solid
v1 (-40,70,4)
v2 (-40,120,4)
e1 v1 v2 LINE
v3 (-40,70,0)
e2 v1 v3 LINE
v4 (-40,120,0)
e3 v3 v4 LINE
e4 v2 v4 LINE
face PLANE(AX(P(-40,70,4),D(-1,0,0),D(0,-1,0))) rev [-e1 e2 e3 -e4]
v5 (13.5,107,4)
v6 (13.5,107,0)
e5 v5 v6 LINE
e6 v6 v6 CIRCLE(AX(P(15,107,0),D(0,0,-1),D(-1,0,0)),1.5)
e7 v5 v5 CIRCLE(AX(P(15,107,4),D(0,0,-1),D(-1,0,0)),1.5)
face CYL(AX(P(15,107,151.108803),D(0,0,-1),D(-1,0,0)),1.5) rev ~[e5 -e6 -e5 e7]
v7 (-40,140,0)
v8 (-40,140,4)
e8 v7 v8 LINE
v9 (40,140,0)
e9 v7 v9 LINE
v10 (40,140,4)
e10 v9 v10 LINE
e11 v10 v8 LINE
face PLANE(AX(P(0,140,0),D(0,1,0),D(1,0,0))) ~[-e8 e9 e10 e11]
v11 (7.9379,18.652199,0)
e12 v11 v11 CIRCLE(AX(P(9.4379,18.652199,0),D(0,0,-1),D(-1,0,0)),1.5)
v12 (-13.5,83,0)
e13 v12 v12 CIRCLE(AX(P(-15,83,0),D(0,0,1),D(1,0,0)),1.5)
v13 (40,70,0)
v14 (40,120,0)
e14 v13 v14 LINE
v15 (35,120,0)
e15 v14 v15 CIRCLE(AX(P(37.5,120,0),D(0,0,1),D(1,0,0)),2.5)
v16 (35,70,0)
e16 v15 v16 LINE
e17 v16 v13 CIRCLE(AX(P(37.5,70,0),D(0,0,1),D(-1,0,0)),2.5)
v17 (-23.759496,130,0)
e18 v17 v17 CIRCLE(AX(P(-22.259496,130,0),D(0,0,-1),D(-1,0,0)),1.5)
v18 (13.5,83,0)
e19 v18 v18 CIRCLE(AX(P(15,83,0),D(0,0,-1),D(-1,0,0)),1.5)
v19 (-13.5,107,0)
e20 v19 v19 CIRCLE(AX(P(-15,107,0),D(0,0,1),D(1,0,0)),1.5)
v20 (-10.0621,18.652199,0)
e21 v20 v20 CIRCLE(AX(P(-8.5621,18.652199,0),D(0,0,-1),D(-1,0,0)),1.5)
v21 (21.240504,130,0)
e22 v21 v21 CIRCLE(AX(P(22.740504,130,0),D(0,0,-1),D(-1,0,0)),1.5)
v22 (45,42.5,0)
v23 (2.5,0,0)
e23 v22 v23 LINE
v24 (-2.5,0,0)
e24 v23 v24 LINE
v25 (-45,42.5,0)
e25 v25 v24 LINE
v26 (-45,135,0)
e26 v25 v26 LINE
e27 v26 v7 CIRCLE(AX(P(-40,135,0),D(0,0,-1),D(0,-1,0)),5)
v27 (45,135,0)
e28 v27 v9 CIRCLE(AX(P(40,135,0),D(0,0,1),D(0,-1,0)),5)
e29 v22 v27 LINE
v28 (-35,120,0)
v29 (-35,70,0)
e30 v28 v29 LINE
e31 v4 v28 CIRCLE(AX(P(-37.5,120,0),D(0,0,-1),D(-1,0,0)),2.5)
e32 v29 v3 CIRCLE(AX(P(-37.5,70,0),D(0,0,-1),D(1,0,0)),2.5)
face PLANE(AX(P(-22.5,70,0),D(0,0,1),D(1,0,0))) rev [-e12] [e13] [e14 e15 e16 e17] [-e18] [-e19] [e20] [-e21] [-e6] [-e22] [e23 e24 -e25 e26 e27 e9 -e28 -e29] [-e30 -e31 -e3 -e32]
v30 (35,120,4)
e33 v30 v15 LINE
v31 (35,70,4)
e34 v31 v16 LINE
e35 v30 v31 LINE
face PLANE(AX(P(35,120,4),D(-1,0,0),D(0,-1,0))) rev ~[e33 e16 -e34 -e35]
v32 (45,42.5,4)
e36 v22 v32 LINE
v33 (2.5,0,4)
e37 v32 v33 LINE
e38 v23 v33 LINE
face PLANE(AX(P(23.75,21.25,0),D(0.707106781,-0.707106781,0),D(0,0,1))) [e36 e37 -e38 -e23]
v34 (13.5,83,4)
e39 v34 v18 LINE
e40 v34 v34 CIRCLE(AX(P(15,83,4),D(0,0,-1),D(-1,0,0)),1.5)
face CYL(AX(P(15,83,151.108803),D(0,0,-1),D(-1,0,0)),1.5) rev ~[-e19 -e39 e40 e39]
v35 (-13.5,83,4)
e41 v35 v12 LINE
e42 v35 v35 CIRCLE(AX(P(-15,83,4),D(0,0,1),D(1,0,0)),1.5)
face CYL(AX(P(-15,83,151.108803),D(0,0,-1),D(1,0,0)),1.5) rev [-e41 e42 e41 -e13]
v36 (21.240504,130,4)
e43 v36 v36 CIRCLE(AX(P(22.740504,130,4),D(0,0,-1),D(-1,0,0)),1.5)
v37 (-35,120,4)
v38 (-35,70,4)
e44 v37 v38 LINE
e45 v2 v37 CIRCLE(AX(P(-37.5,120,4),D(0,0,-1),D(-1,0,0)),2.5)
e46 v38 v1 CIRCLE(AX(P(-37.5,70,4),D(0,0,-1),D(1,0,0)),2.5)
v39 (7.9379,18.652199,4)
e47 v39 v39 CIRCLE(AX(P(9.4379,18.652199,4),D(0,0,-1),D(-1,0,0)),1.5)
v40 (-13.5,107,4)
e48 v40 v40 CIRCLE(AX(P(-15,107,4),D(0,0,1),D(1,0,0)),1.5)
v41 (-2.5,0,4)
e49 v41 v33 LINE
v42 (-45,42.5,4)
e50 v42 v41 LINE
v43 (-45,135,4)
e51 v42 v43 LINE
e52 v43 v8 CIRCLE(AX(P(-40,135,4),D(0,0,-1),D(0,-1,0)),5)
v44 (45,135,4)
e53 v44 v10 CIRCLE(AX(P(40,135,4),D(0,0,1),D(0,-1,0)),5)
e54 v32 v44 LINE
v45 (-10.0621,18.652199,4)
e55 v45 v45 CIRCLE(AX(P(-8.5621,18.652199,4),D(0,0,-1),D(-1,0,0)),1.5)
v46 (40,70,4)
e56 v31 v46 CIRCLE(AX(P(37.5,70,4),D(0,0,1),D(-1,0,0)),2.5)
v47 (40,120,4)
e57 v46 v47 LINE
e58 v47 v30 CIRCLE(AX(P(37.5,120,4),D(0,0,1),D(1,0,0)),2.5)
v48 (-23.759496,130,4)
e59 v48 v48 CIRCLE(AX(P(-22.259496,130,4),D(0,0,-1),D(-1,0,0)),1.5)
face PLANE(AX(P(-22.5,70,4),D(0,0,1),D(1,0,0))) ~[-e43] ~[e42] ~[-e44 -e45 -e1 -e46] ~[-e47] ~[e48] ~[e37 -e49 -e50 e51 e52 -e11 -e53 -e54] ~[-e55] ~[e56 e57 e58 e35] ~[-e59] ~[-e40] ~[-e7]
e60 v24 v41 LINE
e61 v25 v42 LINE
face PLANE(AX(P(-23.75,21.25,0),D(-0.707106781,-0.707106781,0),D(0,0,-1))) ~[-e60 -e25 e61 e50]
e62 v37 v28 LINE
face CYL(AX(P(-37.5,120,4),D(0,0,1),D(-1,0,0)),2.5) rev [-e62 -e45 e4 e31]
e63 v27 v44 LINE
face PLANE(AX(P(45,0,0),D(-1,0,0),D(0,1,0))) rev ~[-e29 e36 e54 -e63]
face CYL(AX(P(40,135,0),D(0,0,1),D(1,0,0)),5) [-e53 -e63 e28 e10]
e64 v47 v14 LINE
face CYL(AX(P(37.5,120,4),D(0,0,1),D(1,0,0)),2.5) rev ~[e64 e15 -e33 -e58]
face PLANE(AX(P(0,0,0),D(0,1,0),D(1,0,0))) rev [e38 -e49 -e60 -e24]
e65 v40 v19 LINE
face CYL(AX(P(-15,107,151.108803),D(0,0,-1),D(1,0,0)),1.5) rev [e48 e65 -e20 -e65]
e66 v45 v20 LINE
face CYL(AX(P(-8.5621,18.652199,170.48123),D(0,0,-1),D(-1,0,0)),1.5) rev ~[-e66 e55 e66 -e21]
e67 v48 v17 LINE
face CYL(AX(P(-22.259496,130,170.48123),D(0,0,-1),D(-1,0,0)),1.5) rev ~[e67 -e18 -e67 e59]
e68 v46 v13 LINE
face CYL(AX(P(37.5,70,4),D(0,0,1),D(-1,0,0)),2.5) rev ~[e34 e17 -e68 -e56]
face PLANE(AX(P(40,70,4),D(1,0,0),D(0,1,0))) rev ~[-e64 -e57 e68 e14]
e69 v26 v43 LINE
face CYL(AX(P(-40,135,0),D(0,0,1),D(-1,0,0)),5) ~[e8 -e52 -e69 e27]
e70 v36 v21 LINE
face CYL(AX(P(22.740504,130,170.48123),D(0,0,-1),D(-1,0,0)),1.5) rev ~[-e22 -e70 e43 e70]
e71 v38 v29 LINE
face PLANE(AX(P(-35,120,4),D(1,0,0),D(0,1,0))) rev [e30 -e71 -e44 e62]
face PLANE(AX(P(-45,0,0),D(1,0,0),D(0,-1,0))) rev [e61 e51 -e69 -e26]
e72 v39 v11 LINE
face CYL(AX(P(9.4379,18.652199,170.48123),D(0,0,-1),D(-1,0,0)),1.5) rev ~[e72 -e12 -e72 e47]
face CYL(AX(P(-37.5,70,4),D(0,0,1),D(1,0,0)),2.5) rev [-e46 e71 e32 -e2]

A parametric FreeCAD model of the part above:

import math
import FreeCAD as App
import Part
import Sketcher
Q = App.Units.Quantity


def edges_at(feature, points):
    """Names of the edges that pass closest to the given points."""
    edges = feature.Shape.Edges
    near = lambda p: min(range(len(edges)), key=lambda i: edges[i].distToShape(Part.Vertex(*p))[0])
    return sorted({f"Edge{near(p) + 1}" for p in points})

doc = App.newDocument("Part")
body = doc.addObject("PartDesign::Body", "Body")

# Sketch on XY plane
sketch1 = doc.addObject("Sketcher::SketchObject", "Sketch")
body.addObject(sketch1)
sketch1.AttachmentSupport = (doc.XY_Plane, [""])
sketch1.MapMode = "FlatFace"
sketch1.addGeometry([
    Part.LineSegment(App.Vector(0, 140, 0), App.Vector(0, 0, 0)),
    Part.LineSegment(App.Vector(0, 0, 0), App.Vector(45, 0, 0)),
    Part.LineSegment(App.Vector(45, 0, 0), App.Vector(45, 140, 0)),
    Part.LineSegment(App.Vector(45, 140, 0), App.Vector(0, 140, 0)),
], False)
sketch1.addConstraint([
    Sketcher.Constraint("Coincident", 0, 2, 1, 1),
    Sketcher.Constraint("Coincident", 1, 2, 2, 1),
    Sketcher.Constraint("Coincident", 2, 2, 3, 1),
    Sketcher.Constraint("Coincident", 3, 2, 0, 1),
    Sketcher.Constraint("Vertical", 0),
    Sketcher.Constraint("Horizontal", 1),
    Sketcher.Constraint("Vertical", 2),
    Sketcher.Constraint("Horizontal", 3),
    Sketcher.Constraint("Coincident", 0, 2, -1, 1),
    Sketcher.Constraint("DistanceX", 1, 1, 1, 2, Q("45 mm")),
    Sketcher.Constraint("DistanceY", 0, 2, 0, 1, Q("140 mm")),
])
pad1 = doc.addObject("PartDesign::Pad", "Pad")
body.addObject(pad1)
pad1.Profile = sketch1
pad1.Length = 4
doc.recompute()

fillet = doc.addObject("PartDesign::Fillet", "Fillet")
body.addObject(fillet)
fillet.Base = (pad1, edges_at(pad1, [(45, 140, 2)]))
fillet.Radius = 5
doc.recompute()

chamfer = doc.addObject("PartDesign::Chamfer", "Chamfer")
body.addObject(chamfer)
chamfer.Base = (fillet, edges_at(fillet, [(45, 0, 2)]))
chamfer.Size = 42.5

# Sketch on XY plane
sketch2 = doc.addObject("Sketcher::SketchObject", "Sketch001")
body.addObject(sketch2)
sketch2.AttachmentSupport = (doc.XY_Plane, [""])
sketch2.MapMode = "FlatFace"
sketch2.AttachmentOffset = App.Placement(App.Vector(0, 0, 4), App.Rotation())
sketch2.addGeometry([
    Part.Circle(App.Vector(15, 107, 0), App.Vector(0, 0, 1), 1.5),
    Part.Circle(App.Vector(15, 83, 0), App.Vector(0, 0, 1), 1.5),
], False)
sketch2.addConstraint([
    Sketcher.Constraint("Equal", 0, 1),
    Sketcher.Constraint("Vertical", 0, 3, 1, 3),
    Sketcher.Constraint("Diameter", 0, Q("3 mm")),
    Sketcher.Constraint("DistanceX", -1, 1, 0, 3, Q("15 mm")),
    Sketcher.Constraint("DistanceY", -1, 1, 0, 3, Q("107 mm")),
    Sketcher.Constraint("DistanceY", -1, 1, 1, 3, Q("83 mm")),
])
doc.recompute()
hole = doc.addObject("PartDesign::Hole", "Hole")
body.addObject(hole)
hole.Profile = sketch2
hole.ThreadType = "None"
hole.Diameter = 3
hole.DepthType = "ThroughAll"

# Sketch on XY plane
sketch3 = doc.addObject("Sketcher::SketchObject", "Sketch002")
body.addObject(sketch3)
sketch3.AttachmentSupport = (doc.XY_Plane, [""])
sketch3.MapMode = "FlatFace"
sketch3.AttachmentOffset = App.Placement(App.Vector(0, 0, 4), App.Rotation())
sketch3.addGeometry([
    Part.ArcOfCircle(Part.Circle(App.Vector(37.5, 70, 0), App.Vector(0, 0, 1), 2.5), math.radians(180), math.radians(360)),
    Part.LineSegment(App.Vector(40, 70, 0), App.Vector(40, 120, 0)),
    Part.ArcOfCircle(Part.Circle(App.Vector(37.5, 120, 0), App.Vector(0, 0, 1), 2.5), math.radians(0), math.radians(180)),
    Part.LineSegment(App.Vector(35, 120, 0), App.Vector(35, 70, 0)),
], False)
sketch3.addConstraint([
    Sketcher.Constraint("Tangent", 0, 2, 1, 1),
    Sketcher.Constraint("Tangent", 1, 2, 2, 1),
    Sketcher.Constraint("Tangent", 2, 2, 3, 1),
    Sketcher.Constraint("Tangent", 3, 2, 0, 1),
    Sketcher.Constraint("Vertical", 1),
    Sketcher.Constraint("Vertical", 3),
    Sketcher.Constraint("Radius", 0, Q("2.5 mm")),
    Sketcher.Constraint("DistanceY", 1, 1, 1, 2, Q("50 mm")),
    Sketcher.Constraint("DistanceY", -1, 1, 0, 3, Q("70 mm")),
    Sketcher.Constraint("DistanceX", -1, 1, 0, 2, Q("40 mm")),
])
pocket1 = doc.addObject("PartDesign::Pocket", "Pocket")
body.addObject(pocket1)
pocket1.Profile = sketch3
pocket1.Length = 60.96641
body2 = doc.addObject("PartDesign::Body", "Body001")
doc.recompute()

body2.BaseFeature = body
doc.recompute()

mirroring = doc.addObject("Part::Mirroring", "Mirroring")
mirroring.Source = body
mirroring.Base = App.Vector(0, 0, 0)
mirroring.Normal = App.Vector(1, 0, 0)
body3 = doc.addObject("PartDesign::Body", "Body002")
body3.BaseFeature = mirroring
boolean = doc.addObject("PartDesign::Boolean", "Boolean")
body2.addObject(boolean)
boolean.Type = "Fuse"
boolean.addObjects([body3])
doc.recompute()

# Sketch on XY plane
sketch4 = doc.addObject("Sketcher::SketchObject", "Sketch003")
body2.addObject(sketch4)
sketch4.AttachmentSupport = (doc.getObject("XY_Plane001"), [""])
sketch4.MapMode = "FlatFace"
sketch4.AttachmentOffset = App.Placement(App.Vector(0, 0, 4), App.Rotation())
sketch4.addGeometry([
    Part.Circle(App.Vector(-22.3, 130, 0), App.Vector(0, 0, 1), 1.5),
    Part.Circle(App.Vector(22.7, 130, 0), App.Vector(0, 0, 1), 1.5),
], False)
sketch4.addConstraint([
    Sketcher.Constraint("Equal", 0, 1),
    Sketcher.Constraint("Horizontal", 0, 3, 1, 3),
    Sketcher.Constraint("Diameter", 0, Q("3 mm")),
    Sketcher.Constraint("DistanceY", -1, 1, 0, 3, Q("130 mm")),
    Sketcher.Constraint("DistanceX", 0, 3, 1, 3, Q("45 mm")),
    Sketcher.Constraint("DistanceX", 0, 3, -1, 1, Q("22.259496 mm")),
])
doc.recompute()
hole2 = doc.addObject("PartDesign::Hole", "Hole001")
body2.addObject(hole2)
hole2.Profile = sketch4
hole2.ThreadType = "None"
hole2.Diameter = 3
hole2.DepthType = "ThroughAll"

# Sketch on XY plane
sketch5 = doc.addObject("Sketcher::SketchObject", "Sketch004")
body2.addObject(sketch5)
sketch5.AttachmentSupport = (doc.getObject("XY_Plane001"), [""])
sketch5.MapMode = "FlatFace"
sketch5.AttachmentOffset = App.Placement(App.Vector(0, 0, 4), App.Rotation())
sketch5.addGeometry([
    Part.Circle(App.Vector(-8.6, 18.7, 0), App.Vector(0, 0, 1), 1.5),
    Part.Circle(App.Vector(9.4, 18.7, 0), App.Vector(0, 0, 1), 1.5),
], False)
sketch5.addConstraint([
    Sketcher.Constraint("Equal", 0, 1),
    Sketcher.Constraint("Horizontal", 0, 3, 1, 3),
    Sketcher.Constraint("Diameter", 0, Q("3 mm")),
    Sketcher.Constraint("DistanceX", 0, 3, 1, 3, Q("18 mm")),
    Sketcher.Constraint("DistanceX", 0, 3, -1, 1, Q("8.5621 mm")),
    Sketcher.Constraint("DistanceY", -1, 1, 0, 3, Q("18.652199 mm")),
])
doc.recompute()
hole3 = doc.addObject("PartDesign::Hole", "Hole002")
body2.addObject(hole3)
hole3.Profile = sketch5
hole3.ThreadType = "None"
hole3.Diameter = 3
hole3.DepthType = "ThroughAll"
mirroring.Visibility = False

doc.recompute()
